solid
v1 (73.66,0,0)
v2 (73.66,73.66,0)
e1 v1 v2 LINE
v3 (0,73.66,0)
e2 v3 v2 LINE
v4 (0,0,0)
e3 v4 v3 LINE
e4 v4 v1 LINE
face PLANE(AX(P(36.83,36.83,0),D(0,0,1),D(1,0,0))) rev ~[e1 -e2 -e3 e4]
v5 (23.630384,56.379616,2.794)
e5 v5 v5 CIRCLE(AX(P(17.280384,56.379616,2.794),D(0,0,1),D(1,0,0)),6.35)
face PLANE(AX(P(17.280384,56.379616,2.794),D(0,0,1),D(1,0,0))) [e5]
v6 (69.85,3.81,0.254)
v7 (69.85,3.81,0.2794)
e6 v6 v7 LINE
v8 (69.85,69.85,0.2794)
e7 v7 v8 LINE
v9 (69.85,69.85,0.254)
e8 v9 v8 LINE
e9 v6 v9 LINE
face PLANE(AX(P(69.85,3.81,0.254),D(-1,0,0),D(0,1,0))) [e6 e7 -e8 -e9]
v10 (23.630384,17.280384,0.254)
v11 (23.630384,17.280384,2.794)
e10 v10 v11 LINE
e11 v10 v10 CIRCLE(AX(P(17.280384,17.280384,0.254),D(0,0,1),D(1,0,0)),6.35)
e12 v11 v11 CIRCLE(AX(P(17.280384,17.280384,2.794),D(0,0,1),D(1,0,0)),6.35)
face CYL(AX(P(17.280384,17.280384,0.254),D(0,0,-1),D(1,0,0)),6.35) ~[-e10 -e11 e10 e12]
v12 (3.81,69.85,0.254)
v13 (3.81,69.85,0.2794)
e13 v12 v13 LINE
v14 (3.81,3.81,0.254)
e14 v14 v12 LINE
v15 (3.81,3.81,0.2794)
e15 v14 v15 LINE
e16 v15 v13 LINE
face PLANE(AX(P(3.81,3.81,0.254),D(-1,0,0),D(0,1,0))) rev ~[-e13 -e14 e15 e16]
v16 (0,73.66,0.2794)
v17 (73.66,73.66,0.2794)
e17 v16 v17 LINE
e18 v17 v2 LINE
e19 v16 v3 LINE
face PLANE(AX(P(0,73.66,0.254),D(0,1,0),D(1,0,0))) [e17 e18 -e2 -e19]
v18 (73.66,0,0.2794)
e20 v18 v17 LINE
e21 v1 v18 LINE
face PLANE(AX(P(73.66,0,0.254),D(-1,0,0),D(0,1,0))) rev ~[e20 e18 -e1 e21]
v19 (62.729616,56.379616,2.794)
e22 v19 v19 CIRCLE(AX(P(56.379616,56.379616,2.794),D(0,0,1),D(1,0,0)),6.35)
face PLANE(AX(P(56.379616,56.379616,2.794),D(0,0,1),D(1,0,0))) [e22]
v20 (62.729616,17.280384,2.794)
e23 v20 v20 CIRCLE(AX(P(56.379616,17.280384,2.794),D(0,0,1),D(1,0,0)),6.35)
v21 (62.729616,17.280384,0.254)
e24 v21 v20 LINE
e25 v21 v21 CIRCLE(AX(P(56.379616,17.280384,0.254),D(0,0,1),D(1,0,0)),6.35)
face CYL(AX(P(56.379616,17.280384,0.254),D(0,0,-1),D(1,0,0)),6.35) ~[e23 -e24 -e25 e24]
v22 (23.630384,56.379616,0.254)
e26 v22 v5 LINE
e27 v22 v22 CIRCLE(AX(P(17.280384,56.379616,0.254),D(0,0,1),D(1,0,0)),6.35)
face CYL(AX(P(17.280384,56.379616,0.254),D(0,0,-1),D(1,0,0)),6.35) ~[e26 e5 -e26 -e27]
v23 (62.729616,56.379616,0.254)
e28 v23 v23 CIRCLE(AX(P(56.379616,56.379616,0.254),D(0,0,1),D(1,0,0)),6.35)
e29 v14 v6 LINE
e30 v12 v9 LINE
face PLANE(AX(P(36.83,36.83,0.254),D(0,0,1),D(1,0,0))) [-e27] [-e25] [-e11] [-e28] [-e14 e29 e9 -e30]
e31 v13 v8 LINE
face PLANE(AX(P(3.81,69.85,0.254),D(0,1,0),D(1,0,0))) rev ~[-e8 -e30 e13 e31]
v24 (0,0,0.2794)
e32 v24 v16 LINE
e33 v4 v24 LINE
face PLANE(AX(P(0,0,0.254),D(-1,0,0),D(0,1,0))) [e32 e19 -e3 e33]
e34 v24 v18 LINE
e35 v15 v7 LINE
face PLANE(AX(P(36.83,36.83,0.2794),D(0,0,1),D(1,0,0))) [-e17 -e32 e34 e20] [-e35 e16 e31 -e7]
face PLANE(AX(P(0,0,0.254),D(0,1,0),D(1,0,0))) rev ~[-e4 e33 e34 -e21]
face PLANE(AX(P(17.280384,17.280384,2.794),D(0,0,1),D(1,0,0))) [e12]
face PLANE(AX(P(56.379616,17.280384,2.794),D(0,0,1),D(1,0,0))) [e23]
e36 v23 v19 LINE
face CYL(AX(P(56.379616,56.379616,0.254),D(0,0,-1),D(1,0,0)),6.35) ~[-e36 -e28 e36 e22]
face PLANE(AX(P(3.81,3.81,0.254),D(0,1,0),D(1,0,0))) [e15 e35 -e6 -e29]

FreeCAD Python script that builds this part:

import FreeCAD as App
import Part
import Sketcher
Q = App.Units.Quantity

doc = App.newDocument("Part")
body = doc.addObject("PartDesign::Body", "Body")

# Sketch on XY plane
sketch1 = doc.addObject("Sketcher::SketchObject", "Sketch")
body.addObject(sketch1)
sketch1.AttachmentSupport = (doc.XY_Plane, [""])
sketch1.MapMode = "FlatFace"
sketch1.addGeometry(Part.LineSegment(App.Vector(0, 74, 0), App.Vector(0, 0, 0)), False)
sketch1.addGeometry(Part.LineSegment(App.Vector(0, 0, 0), App.Vector(74, 0, 0)), False)
sketch1.addGeometry(Part.LineSegment(App.Vector(74, 0, 0), App.Vector(74, 74, 0)), False)
sketch1.addGeometry(Part.LineSegment(App.Vector(74, 74, 0), App.Vector(0, 74, 0)), False)
sketch1.addConstraint(Sketcher.Constraint("Coincident", 0, 2, 1, 1))
sketch1.addConstraint(Sketcher.Constraint("Coincident", 1, 2, 2, 1))
sketch1.addConstraint(Sketcher.Constraint("Coincident", 2, 2, 3, 1))
sketch1.addConstraint(Sketcher.Constraint("Coincident", 3, 2, 0, 1))
sketch1.addConstraint(Sketcher.Constraint("Vertical", 0))
sketch1.addConstraint(Sketcher.Constraint("Horizontal", 1))
sketch1.addConstraint(Sketcher.Constraint("Vertical", 2))
sketch1.addConstraint(Sketcher.Constraint("Horizontal", 3))
sketch1.addConstraint(Sketcher.Constraint("Coincident", 0, 2, -1, 1))
sketch1.addConstraint(Sketcher.Constraint("Equal", 3, 0))
sketch1.addConstraint(Sketcher.Constraint("DistanceX", 1, 1, 1, 2, Q("2.9 in")))
pad1 = doc.addObject("PartDesign::Pad", "Pad")
body.addObject(pad1)
pad1.Profile = sketch1
pad1.Length = Q("0.01 in")

# Sketch on XY plane
sketch2 = doc.addObject("Sketcher::SketchObject", "Sketch001")
body.addObject(sketch2)
sketch2.AttachmentSupport = (doc.XY_Plane, [""])
sketch2.MapMode = "FlatFace"
sketch2.AttachmentOffset = App.Placement(App.Vector(0, 0, 0.01 * 25.4), App.Rotation())
sketch2.addGeometry(Part.LineSegment(App.Vector(0, 74, 0), App.Vector(0, 0, 0)), False)
sketch2.addGeometry(Part.LineSegment(App.Vector(0, 0, 0), App.Vector(74, 0, 0)), False)
sketch2.addGeometry(Part.LineSegment(App.Vector(74, 0, 0), App.Vector(74, 74, 0)), False)
sketch2.addGeometry(Part.LineSegment(App.Vector(74, 74, 0), App.Vector(0, 74, 0)), False)
sketch2.addGeometry(Part.LineSegment(App.Vector(70, 4, 0), App.Vector(4, 4, 0)), False)
sketch2.addGeometry(Part.LineSegment(App.Vector(4, 4, 0), App.Vector(4, 70, 0)), False)
sketch2.addGeometry(Part.LineSegment(App.Vector(4, 70, 0), App.Vector(70, 70, 0)), False)
sketch2.addGeometry(Part.LineSegment(App.Vector(70, 70, 0), App.Vector(70, 4, 0)), False)
sketch2.addConstraint(Sketcher.Constraint("Coincident", 0, 2, 1, 1))
sketch2.addConstraint(Sketcher.Constraint("Coincident", 1, 2, 2, 1))
sketch2.addConstraint(Sketcher.Constraint("Coincident", 2, 2, 3, 1))
sketch2.addConstraint(Sketcher.Constraint("Coincident", 3, 2, 0, 1))
sketch2.addConstraint(Sketcher.Constraint("Coincident", 4, 2, 5, 1))
sketch2.addConstraint(Sketcher.Constraint("Coincident", 5, 2, 6, 1))
sketch2.addConstraint(Sketcher.Constraint("Coincident", 6, 2, 7, 1))
sketch2.addConstraint(Sketcher.Constraint("Coincident", 7, 2, 4, 1))
sketch2.addConstraint(Sketcher.Constraint("Vertical", 0))
sketch2.addConstraint(Sketcher.Constraint("Horizontal", 1))
sketch2.addConstraint(Sketcher.Constraint("Vertical", 2))
sketch2.addConstraint(Sketcher.Constraint("Horizontal", 3))
sketch2.addConstraint(Sketcher.Constraint("Horizontal", 4))
sketch2.addConstraint(Sketcher.Constraint("Vertical", 5))
sketch2.addConstraint(Sketcher.Constraint("Horizontal", 6))
sketch2.addConstraint(Sketcher.Constraint("Vertical", 7))
sketch2.addConstraint(Sketcher.Constraint("Coincident", 0, 2, -1, 1))
sketch2.addConstraint(Sketcher.Constraint("Equal", 3, 0))
sketch2.addConstraint(Sketcher.Constraint("Equal", 6, 5))
sketch2.addConstraint(Sketcher.Constraint("DistanceX", 1, 1, 1, 2, Q("2.9 in")))
sketch2.addConstraint(Sketcher.Constraint("DistanceX", 4, 2, 4, 1, Q("2.6 in")))
sketch2.addConstraint(Sketcher.Constraint("DistanceX", -1, 1, 4, 2, Q("0.15 in")))
sketch2.addConstraint(Sketcher.Constraint("DistanceY", -1, 1, 4, 2, Q("0.15 in")))
pad2 = doc.addObject("PartDesign::Pad", "Pad001")
body.addObject(pad2)
pad2.Profile = sketch2
pad2.Length = Q("0.001 in")

# Sketch on XY plane
sketch3 = doc.addObject("Sketcher::SketchObject", "Sketch002")
body.addObject(sketch3)
sketch3.AttachmentSupport = (doc.XY_Plane, [""])
sketch3.MapMode = "FlatFace"
sketch3.AttachmentOffset = App.Placement(App.Vector(0, 0, 0.01 * 25.4), App.Rotation())
sketch3.addGeometry(Part.Circle(App.Vector(17, 56, 0), App.Vector(0, 0, 1), 6), False)
sketch3.addGeometry(Part.Circle(App.Vector(17, 17, 0), App.Vector(0, 0, 1), 6), False)
sketch3.addGeometry(Part.Circle(App.Vector(56, 17, 0), App.Vector(0, 0, 1), 6), False)
sketch3.addGeometry(Part.Circle(App.Vector(56, 56, 0), App.Vector(0, 0, 1), 6), False)
sketch3.addConstraint(Sketcher.Constraint("Equal", 0, 1))
sketch3.addConstraint(Sketcher.Constraint("Equal", 1, 2))
sketch3.addConstraint(Sketcher.Constraint("Equal", 2, 3))
sketch3.addConstraint(Sketcher.Constraint("Horizontal", 1, 3, 2, 3))
sketch3.addConstraint(Sketcher.Constraint("Horizontal", 0, 3, 3, 3))
sketch3.addConstraint(Sketcher.Constraint("Vertical", 0, 3, 1, 3))
sketch3.addConstraint(Sketcher.Constraint("Vertical", 2, 3, 3, 3))
sketch3.addConstraint(Sketcher.Constraint("Diameter", 0, Q("0.5 in")))
sketch3.addConstraint(Sketcher.Constraint("DistanceX", -1, 1, 0, 3, Q("17.280384 mm")))
sketch3.addConstraint(Sketcher.Constraint("DistanceY", -1, 1, 0, 3, Q("56.379616 mm")))
sketch3.addConstraint(Sketcher.Constraint("DistanceY", -1, 1, 1, 3, Q("17.280384 mm")))
sketch3.addConstraint(Sketcher.Constraint("DistanceX", -1, 1, 2, 3, Q("56.379616 mm")))
pad3 = doc.addObject("PartDesign::Pad", "Pad002")
body.addObject(pad3)
pad3.Profile = sketch3
pad3.Length = Q("0.1 in")

doc.recompute()
